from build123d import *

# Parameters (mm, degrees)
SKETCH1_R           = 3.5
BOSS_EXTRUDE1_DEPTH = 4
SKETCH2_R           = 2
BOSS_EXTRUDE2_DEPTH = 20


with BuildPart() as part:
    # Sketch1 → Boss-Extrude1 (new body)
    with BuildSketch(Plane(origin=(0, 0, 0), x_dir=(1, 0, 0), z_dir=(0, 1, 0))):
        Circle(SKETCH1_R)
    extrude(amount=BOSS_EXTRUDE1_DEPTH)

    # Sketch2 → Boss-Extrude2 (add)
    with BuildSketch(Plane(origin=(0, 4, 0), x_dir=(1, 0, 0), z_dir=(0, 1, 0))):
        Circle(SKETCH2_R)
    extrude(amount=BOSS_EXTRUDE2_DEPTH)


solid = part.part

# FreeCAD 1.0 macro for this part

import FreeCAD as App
import Part
import Sketcher
from FreeCAD import Vector

doc = App.newDocument("Part")
body = doc.addObject("PartDesign::Body", "Body")

# Sketch on XZ plane
sketch1 = doc.addObject("Sketcher::SketchObject", "Sketch")
body.addObject(sketch1)
sketch1.AttachmentSupport = (doc.XZ_Plane, [""])
sketch1.MapMode = "FlatFace"
sketch1.addGeometry(Part.Circle(Vector(0, 0, 0), Vector(0, 0, 1), 3.5), False)
sketch1.addConstraint([
    Sketcher.Constraint("Coincident", 0, 3, -1, 1),
    Sketcher.Constraint("Diameter", 0, 7.0),
])
pad1 = doc.addObject("PartDesign::Pad", "Pad")
body.addObject(pad1)
pad1.Profile = sketch1
pad1.Length = 4
pad1.Reversed = True

# Sketch on XZ plane
sketch2 = doc.addObject("Sketcher::SketchObject", "Sketch001")
body.addObject(sketch2)
sketch2.AttachmentSupport = (doc.XZ_Plane, [""])
sketch2.MapMode = "FlatFace"
sketch2.AttachmentOffset = App.Placement(Vector(0, 0, -4), App.Rotation())
sketch2.addGeometry(Part.Circle(Vector(0, 0, 0), Vector(0, 0, 1), 2), False)
sketch2.addConstraint([
    Sketcher.Constraint("Coincident", 0, 3, -1, 1),
    Sketcher.Constraint("Diameter", 0, 4.0),
])
pad2 = doc.addObject("PartDesign::Pad", "Pad001")
body.addObject(pad2)
pad2.Profile = sketch2
pad2.Length = 20
pad2.Reversed = True

doc.recompute()
